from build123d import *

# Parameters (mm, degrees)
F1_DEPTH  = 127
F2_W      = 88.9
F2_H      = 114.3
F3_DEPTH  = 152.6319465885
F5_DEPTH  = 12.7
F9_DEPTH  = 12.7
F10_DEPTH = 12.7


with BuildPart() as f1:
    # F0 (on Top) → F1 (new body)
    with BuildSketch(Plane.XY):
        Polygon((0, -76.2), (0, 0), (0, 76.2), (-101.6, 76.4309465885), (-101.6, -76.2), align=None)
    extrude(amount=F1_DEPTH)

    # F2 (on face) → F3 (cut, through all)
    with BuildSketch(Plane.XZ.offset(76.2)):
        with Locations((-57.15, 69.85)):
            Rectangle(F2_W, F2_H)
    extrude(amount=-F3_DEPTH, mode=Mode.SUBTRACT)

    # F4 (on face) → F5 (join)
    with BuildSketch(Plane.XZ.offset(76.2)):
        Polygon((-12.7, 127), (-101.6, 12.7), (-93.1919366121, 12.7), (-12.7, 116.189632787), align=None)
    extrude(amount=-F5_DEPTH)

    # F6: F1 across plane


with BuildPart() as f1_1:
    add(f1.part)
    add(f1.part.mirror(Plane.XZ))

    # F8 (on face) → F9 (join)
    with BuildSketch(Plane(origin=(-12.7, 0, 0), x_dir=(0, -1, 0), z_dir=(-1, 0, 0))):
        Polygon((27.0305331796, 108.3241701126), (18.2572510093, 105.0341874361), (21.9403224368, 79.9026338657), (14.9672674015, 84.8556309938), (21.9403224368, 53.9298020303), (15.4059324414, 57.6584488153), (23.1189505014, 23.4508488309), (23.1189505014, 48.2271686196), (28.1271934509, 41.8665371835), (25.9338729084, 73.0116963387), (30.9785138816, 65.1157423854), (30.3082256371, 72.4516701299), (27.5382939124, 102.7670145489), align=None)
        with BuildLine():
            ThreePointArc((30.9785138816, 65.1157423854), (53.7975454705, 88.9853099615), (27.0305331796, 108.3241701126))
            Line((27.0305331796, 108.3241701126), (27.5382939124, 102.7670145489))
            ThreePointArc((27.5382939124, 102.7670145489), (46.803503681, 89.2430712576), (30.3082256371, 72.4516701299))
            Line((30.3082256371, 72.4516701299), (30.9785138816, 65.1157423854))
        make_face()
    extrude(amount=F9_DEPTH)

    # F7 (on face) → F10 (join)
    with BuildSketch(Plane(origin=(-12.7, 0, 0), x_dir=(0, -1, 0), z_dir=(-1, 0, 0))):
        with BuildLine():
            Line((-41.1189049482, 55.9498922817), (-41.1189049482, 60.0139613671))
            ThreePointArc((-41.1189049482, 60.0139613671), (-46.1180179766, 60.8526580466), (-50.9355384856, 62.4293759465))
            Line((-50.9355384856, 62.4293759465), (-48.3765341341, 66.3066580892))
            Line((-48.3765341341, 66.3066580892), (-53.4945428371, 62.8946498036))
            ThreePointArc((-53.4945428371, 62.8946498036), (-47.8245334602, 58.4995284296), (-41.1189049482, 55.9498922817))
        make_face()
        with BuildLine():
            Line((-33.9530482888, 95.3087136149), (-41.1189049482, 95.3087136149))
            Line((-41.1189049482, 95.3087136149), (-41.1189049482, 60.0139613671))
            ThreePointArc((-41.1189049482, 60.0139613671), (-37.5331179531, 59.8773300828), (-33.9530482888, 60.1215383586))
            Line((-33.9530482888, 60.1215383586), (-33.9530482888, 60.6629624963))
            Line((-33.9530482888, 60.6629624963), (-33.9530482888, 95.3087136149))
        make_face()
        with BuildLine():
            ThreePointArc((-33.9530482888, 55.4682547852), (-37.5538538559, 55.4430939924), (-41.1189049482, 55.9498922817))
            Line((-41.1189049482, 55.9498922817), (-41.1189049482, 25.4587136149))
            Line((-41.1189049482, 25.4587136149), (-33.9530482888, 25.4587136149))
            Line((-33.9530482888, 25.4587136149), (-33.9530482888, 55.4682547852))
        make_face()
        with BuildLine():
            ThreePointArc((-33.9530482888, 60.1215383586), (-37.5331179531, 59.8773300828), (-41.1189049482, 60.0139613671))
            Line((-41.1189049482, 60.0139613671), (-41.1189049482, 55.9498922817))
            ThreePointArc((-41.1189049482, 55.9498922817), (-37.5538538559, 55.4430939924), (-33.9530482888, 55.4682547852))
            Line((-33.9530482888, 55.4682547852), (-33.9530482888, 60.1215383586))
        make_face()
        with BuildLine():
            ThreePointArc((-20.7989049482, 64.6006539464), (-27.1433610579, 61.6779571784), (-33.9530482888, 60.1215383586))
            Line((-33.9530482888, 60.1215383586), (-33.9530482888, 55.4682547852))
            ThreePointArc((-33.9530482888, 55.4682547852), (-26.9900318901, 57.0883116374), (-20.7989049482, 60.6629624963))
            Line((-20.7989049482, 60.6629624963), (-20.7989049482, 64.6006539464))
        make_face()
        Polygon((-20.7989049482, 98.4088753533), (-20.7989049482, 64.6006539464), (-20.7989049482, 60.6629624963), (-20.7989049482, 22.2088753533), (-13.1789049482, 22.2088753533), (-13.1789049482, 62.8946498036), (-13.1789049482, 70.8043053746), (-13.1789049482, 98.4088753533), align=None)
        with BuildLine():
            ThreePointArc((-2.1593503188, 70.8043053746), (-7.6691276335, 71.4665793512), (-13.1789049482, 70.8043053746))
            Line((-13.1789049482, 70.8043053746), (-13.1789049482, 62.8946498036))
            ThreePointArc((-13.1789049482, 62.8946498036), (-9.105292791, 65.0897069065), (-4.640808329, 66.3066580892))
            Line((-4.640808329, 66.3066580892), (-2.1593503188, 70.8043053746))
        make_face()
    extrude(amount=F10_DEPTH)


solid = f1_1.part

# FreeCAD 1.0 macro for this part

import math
import FreeCAD as App
import Part
import Sketcher
from FreeCAD import Vector
Q = App.Units.Quantity


def add_polygon(sketch, points):
    """Adds a closed chain of lines whose ends are joined by coincident constraints."""
    first, n = sketch.GeometryCount, len(points)
    for a, b in zip(points, points[1:] + points[:1]):
        sketch.addGeometry(Part.LineSegment(App.Vector(*a, 0), App.Vector(*b, 0)), False)
    for i in range(n):
        sketch.addConstraint(Sketcher.Constraint("Coincident", first + i, 2, first + (i + 1) % n, 1))

doc = App.newDocument("Part")
body = doc.addObject("PartDesign::Body", "Body")

# Sketch on XY plane
sketch1 = body.newObject("Sketcher::SketchObject", "Sketch")
sketch1.AttachmentSupport = (doc.getObject("XY_Plane"), [""])
sketch1.MapMode = "FlatFace"
add_polygon(sketch1, [(0, -76), (0, 76), (-102, 76), (-102, -76)])  # lines 0-3
sketch1.addConstraint(Sketcher.Constraint("Vertical", 0))
sketch1.addConstraint(Sketcher.Constraint("Vertical", 2))
sketch1.addConstraint(Sketcher.Constraint("Horizontal", 3))
sketch1.addConstraint(Sketcher.Constraint("Symmetric", 0, 2, 3, 2, -1, 1))
sketch1.addConstraint(Sketcher.Constraint("DistanceX", 3, 1, 3, 2, Q("4 in")))
sketch1.addConstraint(Sketcher.Constraint("DistanceY", 0, 1, 0, 2, Q("6 in")))
sketch1.addConstraint(Sketcher.Constraint("DistanceY", 2, 2, 2, 1, 152.630947))
pad1 = body.newObject("PartDesign::Pad", "Pad")
pad1.Profile = sketch1
pad1.Length = Q("5 in")

# Sketch on XZ plane
sketch2 = body.newObject("Sketcher::SketchObject", "Sketch001")
sketch2.AttachmentSupport = (doc.getObject("XZ_Plane"), [""])
sketch2.MapMode = "FlatFace"
sketch2.AttachmentOffset = App.Placement(Vector(0, 0, 3 * 25.4), App.Rotation())
add_polygon(sketch2, [(-102, 127), (-102, 13), (-13, 13), (-13, 127)])  # lines 0-3
sketch2.addConstraint(Sketcher.Constraint("Vertical", 0))
sketch2.addConstraint(Sketcher.Constraint("Horizontal", 1))
sketch2.addConstraint(Sketcher.Constraint("Vertical", 2))
sketch2.addConstraint(Sketcher.Constraint("Horizontal", 3))
sketch2.addConstraint(Sketcher.Constraint("DistanceX", 1, 1, 1, 2, Q("3.5 in")))
sketch2.addConstraint(Sketcher.Constraint("DistanceY", 0, 2, 0, 1, Q("4.5 in")))
sketch2.addConstraint(Sketcher.Constraint("DistanceX", 0, 2, -1, 1, Q("4 in")))
sketch2.addConstraint(Sketcher.Constraint("DistanceY", -1, 1, 2, 2, Q("5 in")))
pocket1 = body.newObject("PartDesign::Pocket", "Pocket")
pocket1.Profile = sketch2
pocket1.Type = "ThroughAll"

# Sketch on XZ plane
sketch3 = body.newObject("Sketcher::SketchObject", "Sketch002")
sketch3.AttachmentSupport = (doc.getObject("XZ_Plane"), [""])
sketch3.MapMode = "FlatFace"
sketch3.AttachmentOffset = App.Placement(Vector(0, 0, 3 * 25.4), App.Rotation())
add_polygon(sketch3, [(-13, 127), (-102, 13), (-93, 13), (-13, 116)])  # lines 0-3
sketch3.addConstraint(Sketcher.Constraint("Horizontal", 1))
sketch3.addConstraint(Sketcher.Constraint("Vertical", 3))
sketch3.addConstraint(Sketcher.Constraint("Parallel", 0, 2))
sketch3.addConstraint(Sketcher.Constraint("DistanceX", 0, 2, -1, 1, Q("4 in")))
sketch3.addConstraint(Sketcher.Constraint("DistanceY", -1, 1, 3, 2, Q("5 in")))
sketch3.addConstraint(Sketcher.Constraint("DistanceY", -1, 1, 0, 2, Q("0.5 in")))
sketch3.addConstraint(Sketcher.Constraint("DistanceX", 2, 2, -1, 1, Q("0.5 in")))
sketch3.addConstraint(Sketcher.Constraint("Distance", 2, 131.10704))
pad2 = body.newObject("PartDesign::Pad", "Pad001")
pad2.Profile = sketch3
pad2.Length = Q("0.5 in")
pad2.Reversed = True
body2 = doc.addObject("PartDesign::Body", "Body001")
doc.recompute()

body2.BaseFeature = body
doc.recompute()

mirroring = doc.addObject("Part::Mirroring", "Mirroring")
mirroring.Source = body
mirroring.Base = Vector(0, 0, 0)
mirroring.Normal = Vector(0, -1, 0)
body3 = doc.addObject("PartDesign::Body", "Body002")
body3.BaseFeature = mirroring
boolean = body2.newObject("PartDesign::Boolean", "Boolean")
boolean.Type = "Fuse"
boolean.addObjects([body3])
doc.recompute()

# Sketch on YZ plane
sketch4 = body2.newObject("Sketcher::SketchObject", "Sketch003")
sketch4.AttachmentSupport = (doc.getObject("YZ_Plane001"), [""])
sketch4.MapMode = "FlatFace"
sketch4.AttachmentOffset = App.Placement(Vector(0, 0, -0.5 * 25.4), App.Rotation())
sketch4.addGeometry(Part.LineSegment(Vector(-27, 108, 0), Vector(-18, 105, 0)), False)
sketch4.addGeometry(Part.LineSegment(Vector(-18, 105, 0), Vector(-22, 80, 0)), False)
sketch4.addGeometry(Part.LineSegment(Vector(-22, 80, 0), Vector(-15, 85, 0)), False)
sketch4.addGeometry(Part.LineSegment(Vector(-15, 85, 0), Vector(-22, 54, 0)), False)
sketch4.addGeometry(Part.LineSegment(Vector(-22, 54, 0), Vector(-15, 58, 0)), False)
sketch4.addGeometry(Part.LineSegment(Vector(-15, 58, 0), Vector(-23, 23, 0)), False)
sketch4.addGeometry(Part.LineSegment(Vector(-23, 23, 0), Vector(-23, 48, 0)), False)
sketch4.addGeometry(Part.LineSegment(Vector(-23, 48, 0), Vector(-28, 42, 0)), False)
sketch4.addGeometry(Part.LineSegment(Vector(-28, 42, 0), Vector(-26, 73, 0)), False)
sketch4.addGeometry(Part.LineSegment(Vector(-26, 73, 0), Vector(-31, 65, 0)), False)
sketch4.addGeometry(Part.ArcOfCircle(Part.Circle(Vector(-32, 87, 0), Vector(0, 0, 1), 22), math.radians(77), math.radians(273)), False)
sketch4.addGeometry(Part.LineSegment(Vector(-30, 72, 0), Vector(-28, 103, 0)), False)
sketch4.addGeometry(Part.ArcOfCircle(Part.Circle(Vector(-31, 88, 0), Vector(0, 0, 1), 15), math.radians(75), math.radians(274)), False)
sketch4.addConstraint(Sketcher.Constraint("Coincident", 0, 2, 1, 1))
sketch4.addConstraint(Sketcher.Constraint("Coincident", 1, 2, 2, 1))
sketch4.addConstraint(Sketcher.Constraint("Coincident", 2, 2, 3, 1))
sketch4.addConstraint(Sketcher.Constraint("Coincident", 3, 2, 4, 1))
sketch4.addConstraint(Sketcher.Constraint("Coincident", 4, 2, 5, 1))
sketch4.addConstraint(Sketcher.Constraint("Coincident", 5, 2, 6, 1))
sketch4.addConstraint(Sketcher.Constraint("Coincident", 6, 2, 7, 1))
sketch4.addConstraint(Sketcher.Constraint("Coincident", 7, 2, 8, 1))
sketch4.addConstraint(Sketcher.Constraint("Coincident", 8, 2, 9, 1))
sketch4.addConstraint(Sketcher.Constraint("Coincident", 9, 2, 10, 2))
sketch4.addConstraint(Sketcher.Constraint("Coincident", 10, 1, 0, 1))
sketch4.addConstraint(Sketcher.Constraint("Coincident", 11, 1, 12, 2))
sketch4.addConstraint(Sketcher.Constraint("Coincident", 12, 1, 11, 2))
sketch4.addConstraint(Sketcher.Constraint("Vertical", 6))
sketch4.addConstraint(Sketcher.Constraint("Parallel", 3, 5))
sketch4.addConstraint(Sketcher.Constraint("Vertical", 1, 2, 3, 2))
sketch4.addConstraint(Sketcher.Constraint("Equal", 0, 9))
sketch4.addConstraint(Sketcher.Constraint("Distance", 1, Q("1 in")))
sketch4.addConstraint(Sketcher.Constraint("Radius", 10, 21.900131))
sketch4.addConstraint(Sketcher.Constraint("DistanceY", 1, 2, 2, 2, Q("0.1949999 in")))
sketch4.addConstraint(Sketcher.Constraint("Radius", 12, 15.428956))
sketch4.addConstraint(Sketcher.Constraint("DistanceY", 6, 1, 6, 2, 24.77632))
sketch4.addConstraint(Sketcher.Constraint("DistanceX", 12, 3, 0, 2, 13.181302))
sketch4.addConstraint(Sketcher.Constraint("DistanceY", 5, 2, 4, 2, 34.2076))
sketch4.addConstraint(Sketcher.Constraint("Distance", 0, 9.36987))
sketch4.addConstraint(Sketcher.Constraint("Distance", 2, 8.553109))
sketch4.addConstraint(Sketcher.Constraint("DistanceX", 0, 2, -1, 1, 18.257251))
sketch4.addConstraint(Sketcher.Constraint("DistanceY", -1, 1, 2, 2, 84.855631))
sketch4.addConstraint(Sketcher.Constraint("DistanceY", -1, 1, 4, 2, 57.658449))
sketch4.addConstraint(Sketcher.Constraint("DistanceX", 5, 2, -1, 1, 23.118951))
sketch4.addConstraint(Sketcher.Constraint("DistanceY", -1, 1, 10, 1, 108.32417))
sketch4.addConstraint(Sketcher.Constraint("DistanceY", -1, 1, 11, 1, 72.45167))
sketch4.addConstraint(Sketcher.Constraint("DistanceX", 10, 3, 12, 3, 0.549711))
sketch4.addConstraint(Sketcher.Constraint("DistanceY", 12, 3, 0, 2, 17.195021))
sketch4.addConstraint(Sketcher.Constraint("DistanceX", 10, 3, 1, 2, 10.047941))
sketch4.addConstraint(Sketcher.Constraint("DistanceY", 3, 2, 1, 2, 25.972832))
sketch4.addConstraint(Sketcher.Constraint("DistanceY", 7, 2, 6, 2, 6.360631))
sketch4.addConstraint(Sketcher.Constraint("DistanceX", 7, 2, 3, 2, 6.186871))
sketch4.addConstraint(Sketcher.Constraint("DistanceX", 8, 2, 1, 2, 3.99355))
sketch4.addConstraint(Sketcher.Constraint("DistanceY", 8, 2, 12, 3, 14.82747))
sketch4.addConstraint(Sketcher.Constraint("DistanceX", 12, 1, 10, 1, 0.507761))
pad3 = body2.newObject("PartDesign::Pad", "Pad002")
pad3.Profile = sketch4
pad3.Length = Q("0.5 in")
pad3.Reversed = True

# Sketch on YZ plane
sketch5 = body2.newObject("Sketcher::SketchObject", "Sketch004")
sketch5.AttachmentSupport = (doc.getObject("YZ_Plane001"), [""])
sketch5.MapMode = "FlatFace"
sketch5.AttachmentOffset = App.Placement(Vector(0, 0, -0.5 * 25.4), App.Rotation())
sketch5.addGeometry(Part.ArcOfCircle(Part.Circle(Vector(38, 93.7, 0), Vector(0, 0, 1), 33.8), math.radians(-84.78), math.radians(-67.58)), False)
sketch5.addGeometry(Part.LineSegment(Vector(50.9, 62.4, 0), Vector(48.4, 66.3, 0)), False)
sketch5.addGeometry(Part.LineSegment(Vector(48.4, 66.3, 0), Vector(53.5, 62.9, 0)), False)
sketch5.addGeometry(Part.ArcOfCircle(Part.Circle(Vector(35.9, 79.7, 0), Vector(0, 0, 1), 24.3), math.radians(-78), math.radians(-44)), False)
sketch5.addGeometry(Part.LineSegment(Vector(41.1, 55.9, 0), Vector(41.1, 25.5, 0)), False)
sketch5.addGeometry(Part.LineSegment(Vector(41.1, 25.5, 0), Vector(34, 25.5, 0)), False)
sketch5.addGeometry(Part.LineSegment(Vector(34, 25.5, 0), Vector(34, 55.5, 0)), False)
sketch5.addGeometry(Part.ArcOfCircle(Part.Circle(Vector(35.9, 79.7, 0), Vector(0, 0, 1), 24.3), math.radians(-128), math.radians(-95)), False)
sketch5.addGeometry(Part.LineSegment(Vector(20.8, 60.7, 0), Vector(20.8, 22.2, 0)), False)
sketch5.addGeometry(Part.LineSegment(Vector(20.8, 22.2, 0), Vector(13.2, 22.2, 0)), False)
sketch5.addGeometry(Part.LineSegment(Vector(13.2, 22.2, 0), Vector(13.2, 62.9, 0)), False)
sketch5.addGeometry(Part.ArcOfCircle(Part.Circle(Vector(1.6, 46.2, 0), Vector(0, 0, 1), 20.3), math.radians(55), math.radians(81)), False)
sketch5.addGeometry(Part.LineSegment(Vector(4.6, 66.3, 0), Vector(2.2, 70.8, 0)), False)
sketch5.addGeometry(Part.ArcOfCircle(Part.Circle(Vector(7.7, 48.2, 0), Vector(0, 0, 1), 23.3), math.radians(76), math.radians(104)), False)
sketch5.addGeometry(Part.LineSegment(Vector(13.2, 70.8, 0), Vector(13.2, 98.4, 0)), False)
sketch5.addGeometry(Part.LineSegment(Vector(13.2, 98.4, 0), Vector(20.8, 98.4, 0)), False)
sketch5.addGeometry(Part.LineSegment(Vector(20.8, 98.4, 0), Vector(20.8, 64.6, 0)), False)
sketch5.addGeometry(Part.ArcOfCircle(Part.Circle(Vector(38, 93.7, 0), Vector(0, 0, 1), 33.8), math.radians(-121), math.radians(-97)), False)
sketch5.addGeometry(Part.LineSegment(Vector(34, 60.1, 0), Vector(34, 95.3, 0)), False)
sketch5.addGeometry(Part.LineSegment(Vector(34, 95.3, 0), Vector(41.1, 95.3, 0)), False)
sketch5.addGeometry(Part.LineSegment(Vector(41.1, 95.3, 0), Vector(41.1, 60, 0)), False)
sketch5.addConstraint(Sketcher.Constraint("Coincident", 0, 2, 1, 1))
sketch5.addConstraint(Sketcher.Constraint("Coincident", 1, 2, 2, 1))
sketch5.addConstraint(Sketcher.Constraint("Coincident", 2, 2, 3, 2))
sketch5.addConstraint(Sketcher.Constraint("Coincident", 3, 1, 4, 1))
sketch5.addConstraint(Sketcher.Constraint("Coincident", 4, 2, 5, 1))
sketch5.addConstraint(Sketcher.Constraint("Coincident", 5, 2, 6, 1))
sketch5.addConstraint(Sketcher.Constraint("Coincident", 6, 2, 7, 2))
sketch5.addConstraint(Sketcher.Constraint("Coincident", 7, 1, 8, 1))
sketch5.addConstraint(Sketcher.Constraint("Coincident", 8, 2, 9, 1))
sketch5.addConstraint(Sketcher.Constraint("Coincident", 9, 2, 10, 1))
sketch5.addConstraint(Sketcher.Constraint("Coincident", 10, 2, 11, 1))
sketch5.addConstraint(Sketcher.Constraint("Coincident", 11, 2, 12, 1))
sketch5.addConstraint(Sketcher.Constraint("Coincident", 12, 2, 13, 2))
sketch5.addConstraint(Sketcher.Constraint("Coincident", 13, 1, 14, 1))
sketch5.addConstraint(Sketcher.Constraint("Coincident", 14, 2, 15, 1))
sketch5.addConstraint(Sketcher.Constraint("Coincident", 15, 2, 16, 1))
sketch5.addConstraint(Sketcher.Constraint("Coincident", 16, 2, 17, 1))
sketch5.addConstraint(Sketcher.Constraint("Coincident", 17, 2, 18, 1))
sketch5.addConstraint(Sketcher.Constraint("Coincident", 18, 2, 19, 1))
sketch5.addConstraint(Sketcher.Constraint("Coincident", 19, 2, 20, 1))
sketch5.addConstraint(Sketcher.Constraint("Coincident", 20, 2, 0, 1))
sketch5.addConstraint(Sketcher.Constraint("Vertical", 4))
sketch5.addConstraint(Sketcher.Constraint("Horizontal", 5))
sketch5.addConstraint(Sketcher.Constraint("Vertical", 6))
sketch5.addConstraint(Sketcher.Constraint("Vertical", 8))
sketch5.addConstraint(Sketcher.Constraint("Horizontal", 9))
sketch5.addConstraint(Sketcher.Constraint("Vertical", 10))
sketch5.addConstraint(Sketcher.Constraint("Vertical", 14))
sketch5.addConstraint(Sketcher.Constraint("Horizontal", 15))
sketch5.addConstraint(Sketcher.Constraint("Vertical", 16))
sketch5.addConstraint(Sketcher.Constraint("Vertical", 18))
sketch5.addConstraint(Sketcher.Constraint("Horizontal", 19))
sketch5.addConstraint(Sketcher.Constraint("Vertical", 20))
sketch5.addConstraint(Sketcher.Constraint("Coincident", 7, 3, 3, 3))
sketch5.addConstraint(Sketcher.Constraint("Coincident", 17, 3, 0, 3))
sketch5.addConstraint(Sketcher.Constraint("Equal", 3, 7))
sketch5.addConstraint(Sketcher.Constraint("Equal", 0, 17))
sketch5.addConstraint(Sketcher.Constraint("Horizontal", 2, 2, 10, 2))
sketch5.addConstraint(Sketcher.Constraint("Horizontal", 1, 2, 11, 2))
sketch5.addConstraint(Sketcher.Constraint("Horizontal", 12, 2, 13, 1))
sketch5.addConstraint(Sketcher.Constraint("Vertical", 10, 2, 13, 1))
sketch5.addConstraint(Sketcher.Constraint("Vertical", 8, 2, 15, 2))
sketch5.addConstraint(Sketcher.Constraint("Vertical", 6, 2, 17, 2))
sketch5.addConstraint(Sketcher.Constraint("Vertical", 4, 2, 19, 2))
sketch5.addConstraint(Sketcher.Constraint("DistanceX", 9, 2, 9, 1, Q("0.3 in")))
sketch5.addConstraint(Sketcher.Constraint("DistanceX", 7, 1, 3, 1, Q("0.8 in")))
sketch5.addConstraint(Sketcher.Constraint("Radius", 3, 24.319999))
sketch5.addConstraint(Sketcher.Constraint("Radius", 0, 33.807112))
sketch5.addConstraint(Sketcher.Constraint("Radius", 11, 20.328765))
sketch5.addConstraint(Sketcher.Constraint("Radius", 13, 23.250387))
sketch5.addConstraint(Sketcher.Constraint("DistanceX", 3, 3, 1, 2, Q("0.4902999 in")))
sketch5.addConstraint(Sketcher.Constraint("DistanceX", 13, 3, 5, 2, Q("1.0348 in")))
sketch5.addConstraint(Sketcher.Constraint("DistanceY", 6, 2, 17, 2, Q("0.1832001 in")))
sketch5.addConstraint(Sketcher.Constraint("DistanceY", 4, 2, 4, 1, 30.491179))
sketch5.addConstraint(Sketcher.Constraint("DistanceY", 6, 1, 6, 2, 30.009541))
sketch5.addConstraint(Sketcher.Constraint("DistanceY", 14, 1, 14, 2, 27.60457))
sketch5.addConstraint(Sketcher.Constraint("DistanceY", 16, 2, 16, 1, 33.808221))
sketch5.addConstraint(Sketcher.Constraint("DistanceY", 11, 3, 7, 1, 14.450502))
sketch5.addConstraint(Sketcher.Constraint("DistanceY", 6, 2, 16, 2, 9.132399))
sketch5.addConstraint(Sketcher.Constraint("DistanceX", 5, 2, 5, 1, 7.165857))
sketch5.addConstraint(Sketcher.Constraint("DistanceY", 8, 2, 8, 1, 38.454087))
sketch5.addConstraint(Sketcher.Constraint("DistanceY", 10, 1, 10, 2, 40.685774))
sketch5.addConstraint(Sketcher.Constraint("DistanceY", 18, 1, 18, 2, 35.187175))
sketch5.addConstraint(Sketcher.Constraint("DistanceX", -1, 1, 0, 3, 38.040588))
sketch5.addConstraint(Sketcher.Constraint("DistanceY", -1, 1, 11, 3, 46.212461))
sketch5.addConstraint(Sketcher.Constraint("DistanceX", -1, 1, 0, 2, 50.935538))
sketch5.addConstraint(Sketcher.Constraint("DistanceY", -1, 1, 1, 2, 66.306658))
pad4 = body2.newObject("PartDesign::Pad", "Pad003")
pad4.Profile = sketch5
pad4.Length = Q("0.5 in")
pad4.Reversed = True
mirroring.Visibility = False

doc.recompute()
